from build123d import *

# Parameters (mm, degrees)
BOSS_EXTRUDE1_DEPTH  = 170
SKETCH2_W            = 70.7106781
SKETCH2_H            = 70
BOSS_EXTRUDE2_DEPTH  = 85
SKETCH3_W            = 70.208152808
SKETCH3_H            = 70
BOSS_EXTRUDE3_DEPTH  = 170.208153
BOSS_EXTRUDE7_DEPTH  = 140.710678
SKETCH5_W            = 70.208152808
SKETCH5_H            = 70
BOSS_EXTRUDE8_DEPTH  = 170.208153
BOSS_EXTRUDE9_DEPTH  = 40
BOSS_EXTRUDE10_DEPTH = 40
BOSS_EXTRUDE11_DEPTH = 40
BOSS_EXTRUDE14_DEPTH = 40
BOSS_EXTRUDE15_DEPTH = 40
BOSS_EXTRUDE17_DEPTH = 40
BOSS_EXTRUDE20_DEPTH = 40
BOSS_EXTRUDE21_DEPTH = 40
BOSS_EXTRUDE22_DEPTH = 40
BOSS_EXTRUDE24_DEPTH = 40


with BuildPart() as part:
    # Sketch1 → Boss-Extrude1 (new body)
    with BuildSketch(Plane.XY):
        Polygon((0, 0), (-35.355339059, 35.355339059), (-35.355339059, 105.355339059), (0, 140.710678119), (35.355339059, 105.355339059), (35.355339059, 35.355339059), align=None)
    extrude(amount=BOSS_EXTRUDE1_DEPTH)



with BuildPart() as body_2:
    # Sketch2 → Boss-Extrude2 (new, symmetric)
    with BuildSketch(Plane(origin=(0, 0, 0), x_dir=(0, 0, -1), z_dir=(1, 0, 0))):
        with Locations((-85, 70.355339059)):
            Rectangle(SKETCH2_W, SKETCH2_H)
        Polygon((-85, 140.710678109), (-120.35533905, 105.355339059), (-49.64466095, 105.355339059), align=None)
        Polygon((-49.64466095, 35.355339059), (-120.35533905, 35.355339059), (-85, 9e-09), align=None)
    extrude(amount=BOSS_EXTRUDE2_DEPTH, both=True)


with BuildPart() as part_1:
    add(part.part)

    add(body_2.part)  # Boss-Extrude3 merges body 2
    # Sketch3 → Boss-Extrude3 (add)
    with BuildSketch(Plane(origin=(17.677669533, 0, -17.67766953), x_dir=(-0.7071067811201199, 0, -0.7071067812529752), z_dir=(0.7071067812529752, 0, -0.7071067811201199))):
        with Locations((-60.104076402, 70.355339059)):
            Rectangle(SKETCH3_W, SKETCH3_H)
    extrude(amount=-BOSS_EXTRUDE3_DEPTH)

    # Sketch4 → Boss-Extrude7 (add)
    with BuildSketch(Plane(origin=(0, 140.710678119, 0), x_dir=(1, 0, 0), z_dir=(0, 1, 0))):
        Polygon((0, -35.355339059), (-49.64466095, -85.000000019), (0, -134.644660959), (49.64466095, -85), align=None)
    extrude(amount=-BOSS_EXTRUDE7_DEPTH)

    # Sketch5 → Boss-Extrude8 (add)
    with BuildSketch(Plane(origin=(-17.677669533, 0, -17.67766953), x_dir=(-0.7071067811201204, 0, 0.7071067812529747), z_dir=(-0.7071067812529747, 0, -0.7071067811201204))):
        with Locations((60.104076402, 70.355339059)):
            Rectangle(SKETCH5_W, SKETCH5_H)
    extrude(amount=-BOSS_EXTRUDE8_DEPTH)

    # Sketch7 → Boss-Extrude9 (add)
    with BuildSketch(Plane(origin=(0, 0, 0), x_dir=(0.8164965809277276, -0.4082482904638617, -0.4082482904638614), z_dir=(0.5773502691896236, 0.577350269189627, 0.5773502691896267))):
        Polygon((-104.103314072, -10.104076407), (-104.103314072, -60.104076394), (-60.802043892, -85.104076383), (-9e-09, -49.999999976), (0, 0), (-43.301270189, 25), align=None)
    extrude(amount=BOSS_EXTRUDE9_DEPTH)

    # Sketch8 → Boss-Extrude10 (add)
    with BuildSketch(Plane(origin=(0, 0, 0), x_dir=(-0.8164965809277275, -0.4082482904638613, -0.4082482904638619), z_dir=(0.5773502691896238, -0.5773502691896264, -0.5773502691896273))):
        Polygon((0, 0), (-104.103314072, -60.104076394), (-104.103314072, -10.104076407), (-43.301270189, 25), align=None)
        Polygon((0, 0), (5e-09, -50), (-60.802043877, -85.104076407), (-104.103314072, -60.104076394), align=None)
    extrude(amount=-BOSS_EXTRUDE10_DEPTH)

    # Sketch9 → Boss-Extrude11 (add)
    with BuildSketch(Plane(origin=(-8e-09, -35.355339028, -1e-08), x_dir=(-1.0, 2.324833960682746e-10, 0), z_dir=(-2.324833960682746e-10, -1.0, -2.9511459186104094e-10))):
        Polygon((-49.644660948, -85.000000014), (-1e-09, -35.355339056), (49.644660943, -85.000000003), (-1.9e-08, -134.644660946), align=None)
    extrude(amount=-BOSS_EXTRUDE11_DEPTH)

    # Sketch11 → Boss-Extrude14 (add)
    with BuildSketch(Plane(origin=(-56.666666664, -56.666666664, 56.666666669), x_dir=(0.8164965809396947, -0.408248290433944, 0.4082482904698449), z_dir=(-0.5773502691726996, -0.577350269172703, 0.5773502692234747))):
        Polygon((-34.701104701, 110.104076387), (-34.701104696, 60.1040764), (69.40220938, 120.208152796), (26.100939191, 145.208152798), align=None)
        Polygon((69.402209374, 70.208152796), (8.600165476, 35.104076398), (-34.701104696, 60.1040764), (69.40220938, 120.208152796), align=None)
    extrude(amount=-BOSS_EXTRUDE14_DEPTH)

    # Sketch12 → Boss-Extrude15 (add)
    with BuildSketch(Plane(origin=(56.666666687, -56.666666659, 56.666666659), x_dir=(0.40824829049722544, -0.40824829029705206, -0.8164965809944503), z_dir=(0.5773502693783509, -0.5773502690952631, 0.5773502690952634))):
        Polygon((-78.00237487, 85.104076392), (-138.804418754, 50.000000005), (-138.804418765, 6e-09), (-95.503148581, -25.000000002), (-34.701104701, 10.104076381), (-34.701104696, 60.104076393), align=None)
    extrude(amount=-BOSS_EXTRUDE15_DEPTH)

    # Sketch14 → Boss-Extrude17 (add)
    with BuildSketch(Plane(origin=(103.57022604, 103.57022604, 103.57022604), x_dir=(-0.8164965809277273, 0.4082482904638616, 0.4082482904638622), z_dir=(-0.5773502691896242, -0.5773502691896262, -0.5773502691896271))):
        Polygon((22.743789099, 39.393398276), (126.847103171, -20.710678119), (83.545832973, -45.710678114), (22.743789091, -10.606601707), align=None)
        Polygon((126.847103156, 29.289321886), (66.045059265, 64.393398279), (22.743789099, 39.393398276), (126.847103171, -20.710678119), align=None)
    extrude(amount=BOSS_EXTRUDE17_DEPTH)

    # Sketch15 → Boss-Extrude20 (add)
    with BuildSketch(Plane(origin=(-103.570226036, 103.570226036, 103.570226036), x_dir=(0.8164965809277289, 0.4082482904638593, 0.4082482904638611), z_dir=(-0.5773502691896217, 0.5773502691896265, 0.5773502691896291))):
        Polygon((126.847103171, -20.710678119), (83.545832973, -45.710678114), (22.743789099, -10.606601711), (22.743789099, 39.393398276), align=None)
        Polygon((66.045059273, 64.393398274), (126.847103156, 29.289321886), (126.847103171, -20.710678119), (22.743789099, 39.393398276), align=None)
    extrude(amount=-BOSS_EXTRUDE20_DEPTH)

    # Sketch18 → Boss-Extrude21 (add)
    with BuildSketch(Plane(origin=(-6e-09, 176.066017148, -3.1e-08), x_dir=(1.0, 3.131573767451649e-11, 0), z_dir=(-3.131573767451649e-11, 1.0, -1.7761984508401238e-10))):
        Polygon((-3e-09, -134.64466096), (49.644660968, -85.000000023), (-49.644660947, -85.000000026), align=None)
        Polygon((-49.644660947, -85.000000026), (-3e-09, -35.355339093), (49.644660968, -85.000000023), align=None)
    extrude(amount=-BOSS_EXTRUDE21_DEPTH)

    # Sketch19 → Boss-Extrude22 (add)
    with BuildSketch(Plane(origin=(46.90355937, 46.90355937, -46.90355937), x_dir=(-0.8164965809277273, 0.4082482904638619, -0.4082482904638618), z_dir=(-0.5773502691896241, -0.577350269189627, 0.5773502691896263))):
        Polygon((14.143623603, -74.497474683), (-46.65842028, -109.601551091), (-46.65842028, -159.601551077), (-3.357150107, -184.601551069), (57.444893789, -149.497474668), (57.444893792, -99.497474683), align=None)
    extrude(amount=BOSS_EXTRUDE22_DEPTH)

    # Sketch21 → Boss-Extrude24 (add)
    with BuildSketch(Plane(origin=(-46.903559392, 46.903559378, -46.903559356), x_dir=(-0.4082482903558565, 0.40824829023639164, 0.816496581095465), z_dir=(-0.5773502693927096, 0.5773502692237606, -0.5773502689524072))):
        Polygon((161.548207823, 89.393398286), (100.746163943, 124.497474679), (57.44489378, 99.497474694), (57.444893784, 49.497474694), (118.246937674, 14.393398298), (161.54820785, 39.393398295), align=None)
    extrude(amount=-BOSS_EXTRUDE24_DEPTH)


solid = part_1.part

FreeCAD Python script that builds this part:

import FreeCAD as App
import Part
import Sketcher

V = App.Vector
Q = App.Units.Quantity


def add_polygon(sketch, points):
    """Adds a closed chain of lines whose ends are joined by coincident constraints."""
    first, n = sketch.GeometryCount, len(points)
    for a, b in zip(points, points[1:] + points[:1]):
        sketch.addGeometry(Part.LineSegment(App.Vector(*a, 0), App.Vector(*b, 0)), False)
    for i in range(n):
        sketch.addConstraint(Sketcher.Constraint("Coincident", first + i, 2, first + (i + 1) % n, 1))

doc = App.newDocument("Part")
body = doc.addObject("PartDesign::Body", "Body")

sketch1 = doc.addObject("Sketcher::SketchObject", "Sketch")
body.addObject(sketch1)
sketch1.AttachmentSupport = (doc.XY_Plane, [""])
sketch1.MapMode = "FlatFace"
add_polygon(sketch1, [(-35, 35), (0, 0), (35, 35), (35, 105), (0, 141), (-35, 105)])
sketch1.addConstraint([
    Sketcher.Constraint("Vertical", 2),
    Sketcher.Constraint("Vertical", 5),
    Sketcher.Constraint("Coincident", 0, 2, -1, 1),
    Sketcher.Constraint("Symmetric", 2, 2, 4, 2, -2),
    Sketcher.Constraint("PointOnObject", 3, 2, -2),
    Sketcher.Constraint("Perpendicular", 0, 1),
    Sketcher.Constraint("Perpendicular", 1, 3),
    Sketcher.Constraint("Perpendicular", 3, 4),
    Sketcher.Constraint("DistanceY", 2, 1, 2, 2, 70.0),
    Sketcher.Constraint("Distance", 0, 50.0),
])
pad1 = doc.addObject("PartDesign::Pad", "Pad")
body.addObject(pad1)
pad1.Profile = sketch1
pad1.Length = 170
body2 = doc.addObject("PartDesign::Body", "Body001")

sketch2 = doc.addObject("Sketcher::SketchObject", "Sketch001")
body2.addObject(sketch2)
sketch2.AttachmentSupport = (doc.getObject("YZ_Plane001"), [""])
sketch2.MapMode = "FlatFace"
add_polygon(sketch2, [(105, 120), (35, 120), (0, 85), (35, 50), (105, 50), (141, 85)])
sketch2.addConstraint([
    Sketcher.Constraint("Horizontal", 0),
    Sketcher.Constraint("Horizontal", 3),
    Sketcher.Constraint("PointOnObject", 1, 2, -2),
    Sketcher.Constraint("Perpendicular", 1, 2),
    Sketcher.Constraint("Perpendicular", 2, 4),
    Sketcher.Constraint("Perpendicular", 4, 5),
    Sketcher.Constraint("Horizontal", 1, 2, 4, 2),
    Sketcher.Constraint("Vertical", 0, 2, 2, 2),
    Sketcher.Constraint("Vertical", 3, 2, 5, 2),
    Sketcher.Constraint("DistanceX", 0, 2, 0, 1, 70.0),
    Sketcher.Constraint("Distance", 1, 50.0),
    Sketcher.Constraint("DistanceY", -1, 1, 1, 2, 85.0),
])
pad2 = doc.addObject("PartDesign::Pad", "Pad001")
body2.addObject(pad2)
pad2.Profile = sketch2
pad2.Length = 170
pad2.Midplane = True
doc.recompute()

boolean = doc.addObject("PartDesign::Boolean", "Boolean")
body.addObject(boolean)
boolean.Type = "Fuse"
boolean.addObjects([body2])

sketch3 = doc.addObject("Sketcher::SketchObject", "Sketch002")
body.addObject(sketch3)
sketch3.Placement = App.Placement(V(17.67767, 0, -17.67767), App.Rotation(V(-0.707106781, 0, -0.707106781), V(0, 0.999999999, 0), V(0.707106781, 0, -0.707106781), "ZXY"))
add_polygon(sketch3, [(-95, 105), (-95, 35), (-25, 35), (-25, 105)])
sketch3.addConstraint([
    Sketcher.Constraint("Vertical", 0),
    Sketcher.Constraint("Horizontal", 1),
    Sketcher.Constraint("Vertical", 2),
    Sketcher.Constraint("Horizontal", 3),
    Sketcher.Constraint("DistanceY", 0, 2, 0, 1, 70.0),
    Sketcher.Constraint("DistanceX", 1, 2, -1, 1, 25.0),
    Sketcher.Constraint("DistanceX", 1, 1, 1, 2, 70.208153),
    Sketcher.Constraint("DistanceY", -1, 1, 0, 2, 35.355339),
])
pad3 = doc.addObject("PartDesign::Pad", "Pad002")
body.addObject(pad3)
pad3.Profile = sketch3
pad3.Length = 170.208153
pad3.Reversed = True

sketch4 = doc.addObject("Sketcher::SketchObject", "Sketch003")
body.addObject(sketch4)
sketch4.AttachmentSupport = (doc.XZ_Plane, [""])
sketch4.MapMode = "FlatFace"
sketch4.AttachmentOffset = App.Placement(V(0, 0, -140.710678), App.Rotation())
add_polygon(sketch4, [(0, 35), (-50, 85), (0, 135), (50, 85)])
sketch4.addConstraint([
    Sketcher.Constraint("Symmetric", 0, 2, 2, 2, -2),
    Sketcher.Constraint("PointOnObject", 1, 2, -2),
    Sketcher.Constraint("PointOnObject", 3, 2, -2),
    Sketcher.Constraint("Perpendicular", 0, 1),
    Sketcher.Constraint("Perpendicular", 1, 2),
    Sketcher.Constraint("DistanceY", -1, 1, 0, 2, 85.0),
    Sketcher.Constraint("DistanceX", 0, 2, -1, 1, 49.644661),
])
pad4 = doc.addObject("PartDesign::Pad", "Pad003")
body.addObject(pad4)
pad4.Profile = sketch4
pad4.Length = 140.710678

sketch5 = doc.addObject("Sketcher::SketchObject", "Sketch004")
body.addObject(sketch5)
sketch5.Placement = App.Placement(V(-17.67767, 0, -17.67767), App.Rotation(V(-0.707106781, 0, 0.707106781), V(0, 0.999999999, 0), V(-0.707106781, 0, -0.707106781), "ZXY"))
add_polygon(sketch5, [(25, 105), (25, 35), (95, 35), (95, 105)])
sketch5.addConstraint([
    Sketcher.Constraint("Vertical", 0),
    Sketcher.Constraint("Horizontal", 1),
    Sketcher.Constraint("Vertical", 2),
    Sketcher.Constraint("Horizontal", 3),
    Sketcher.Constraint("DistanceY", 0, 2, 0, 1, 70.0),
    Sketcher.Constraint("DistanceX", -1, 1, 0, 2, 25.0),
    Sketcher.Constraint("DistanceX", 1, 1, 1, 2, 70.208153),
    Sketcher.Constraint("DistanceY", -1, 1, 0, 2, 35.355339),
])
pad5 = doc.addObject("PartDesign::Pad", "Pad004")
body.addObject(pad5)
pad5.Profile = sketch5
pad5.Length = 170.208153
pad5.Reversed = True

sketch6 = doc.addObject("Sketcher::SketchObject", "Sketch005")
body.addObject(sketch6)
sketch6.Placement = App.Placement(V(0, 0, 0), App.Rotation(V(0.816496581, -0.40824829, -0.40824829), V(0, 0.707106781, -0.707106781), V(0.577350269, 0.577350269, 0.577350269), "ZXY"))
add_polygon(sketch6, [(-104, -10), (-104, -60), (-61, -85), (0, -50), (0, 0), (-43, 25)])
sketch6.addConstraint([
    Sketcher.Constraint("Vertical", 0),
    Sketcher.Constraint("Vertical", 3),
    Sketcher.Constraint("Coincident", 3, 2, -1, 1),
    Sketcher.Constraint("Parallel", 1, 4),
    Sketcher.Constraint("Parallel", 2, 5),
    Sketcher.Constraint("Equal", 0, 3),
    Sketcher.Constraint("DistanceY", 0, 2, 0, 1, 50.0),
    Sketcher.Constraint("Angle", 1, Q("-30 deg")),
    Sketcher.Constraint("Angle", 2, Q("30 deg")),
    Sketcher.Constraint("Distance", 1, 50.0),
    Sketcher.Constraint("Distance", 2, 70.208153),
])
pad6 = doc.addObject("PartDesign::Pad", "Pad005")
body.addObject(pad6)
pad6.Profile = sketch6
pad6.Length = 40

sketch7 = doc.addObject("Sketcher::SketchObject", "Sketch006")
body.addObject(sketch7)
sketch7.Placement = App.Placement(V(0, 0, 0), App.Rotation(V(-0.816496581, -0.40824829, -0.40824829), V(0, 0.707106781, -0.707106781), V(0.577350269, -0.577350269, -0.577350269), "ZXY"))
add_polygon(sketch7, [(-104, -10), (-104, -60), (-61, -85), (0, -50), (0, 0), (-43, 25)])
sketch7.addConstraint([
    Sketcher.Constraint("Vertical", 0),
    Sketcher.Constraint("Vertical", 3),
    Sketcher.Constraint("Coincident", 3, 2, -1, 1),
    Sketcher.Constraint("Parallel", 1, 4),
    Sketcher.Constraint("Parallel", 2, 5),
    Sketcher.Constraint("Equal", 0, 3),
    Sketcher.Constraint("DistanceY", 0, 2, 0, 1, 50.0),
    Sketcher.Constraint("Angle", 1, Q("-30 deg")),
    Sketcher.Constraint("Angle", 2, Q("30 deg")),
    Sketcher.Constraint("Distance", 1, 50.0),
    Sketcher.Constraint("Distance", 2, 70.208153),
])
pad7 = doc.addObject("PartDesign::Pad", "Pad006")
body.addObject(pad7)
pad7.Profile = sketch7
pad7.Length = 40
pad7.Reversed = True

sketch8 = doc.addObject("Sketcher::SketchObject", "Sketch007")
body.addObject(sketch8)
sketch8.AttachmentSupport = (doc.XZ_Plane, [""])
sketch8.MapMode = "FlatFace"
sketch8.AttachmentOffset = App.Placement(V(0, 0, 35.355339), App.Rotation())
add_polygon(sketch8, [(0, 35), (50, 85), (0, 135), (-50, 85)])
sketch8.addConstraint([
    Sketcher.Constraint("Symmetric", 0, 2, 2, 2, -2),
    Sketcher.Constraint("PointOnObject", 1, 2, -2),
    Sketcher.Constraint("PointOnObject", 3, 2, -2),
    Sketcher.Constraint("Perpendicular", 0, 1),
    Sketcher.Constraint("Perpendicular", 1, 2),
    Sketcher.Constraint("DistanceY", -1, 1, 0, 2, 85.0),
    Sketcher.Constraint("DistanceX", -1, 1, 0, 2, 49.644661),
])
pad8 = doc.addObject("PartDesign::Pad", "Pad007")
body.addObject(pad8)
pad8.Profile = sketch8
pad8.Length = 40
pad8.Reversed = True

sketch9 = doc.addObject("Sketcher::SketchObject", "Sketch008")
body.addObject(sketch9)
sketch9.Placement = App.Placement(V(-56.666667, -56.666667, 56.666667), App.Rotation(V(0.816496581, -0.40824829, 0.40824829), V(0, 0.707106781, 0.707106781), V(-0.577350269, -0.577350269, 0.577350269), "ZXY"))
add_polygon(sketch9, [(-35, 110), (-35, 60), (9, 35), (69, 70), (69, 120), (26, 145)])
sketch9.addConstraint([
    Sketcher.Constraint("Vertical", 0),
    Sketcher.Constraint("Vertical", 3),
    Sketcher.Constraint("Parallel", 1, 4),
    Sketcher.Constraint("Parallel", 2, 5),
    Sketcher.Constraint("Equal", 0, 3),
    Sketcher.Constraint("DistanceY", 0, 2, 0, 1, 50.0),
    Sketcher.Constraint("Angle", 1, Q("-30 deg")),
    Sketcher.Constraint("Angle", 2, Q("30 deg")),
    Sketcher.Constraint("Distance", 1, 50.0),
    Sketcher.Constraint("DistanceX", -1, 1, 2, 2, 69.402209),
    Sketcher.Constraint("Distance", 2, 70.208153),
    Sketcher.Constraint("DistanceY", -1, 1, 0, 2, 60.104076),
])
pad9 = doc.addObject("PartDesign::Pad", "Pad008")
body.addObject(pad9)
pad9.Profile = sketch9
pad9.Length = 40
pad9.Reversed = True

sketch10 = doc.addObject("Sketcher::SketchObject", "Sketch009")
body.addObject(sketch10)
sketch10.Placement = App.Placement(V(56.666667, -56.666667, 56.666667), App.Rotation(V(0.40824829, -0.40824829, -0.816496581), V(0.707106781, 0.707106781, 0), V(0.577350269, -0.577350269, 0.577350269), "ZXY"))
add_polygon(sketch10, [(-78, 85), (-139, 50), (-139, 0), (-96, -25), (-35, 10), (-35, 60)])
sketch10.addConstraint([
    Sketcher.Constraint("Vertical", 1),
    Sketcher.Constraint("Vertical", 4),
    Sketcher.Constraint("PointOnObject", 1, 2, -1),
    Sketcher.Constraint("Parallel", 0, 3),
    Sketcher.Constraint("Parallel", 2, 5),
    Sketcher.Constraint("Equal", 1, 4),
    Sketcher.Constraint("DistanceY", 1, 2, 1, 1, 50.0),
    Sketcher.Constraint("Angle", 0, Q("-150 deg")),
    Sketcher.Constraint("Angle", 2, Q("-30 deg")),
    Sketcher.Constraint("Distance", 2, 50.0),
    Sketcher.Constraint("DistanceX", 0, 2, -1, 1, 138.804419),
    Sketcher.Constraint("Distance", 0, 70.208153),
])
pad10 = doc.addObject("PartDesign::Pad", "Pad009")
body.addObject(pad10)
pad10.Profile = sketch10
pad10.Length = 40
pad10.Reversed = True

sketch11 = doc.addObject("Sketcher::SketchObject", "Sketch010")
body.addObject(sketch11)
sketch11.Placement = App.Placement(V(103.570226, 103.570226, 103.570226), App.Rotation(V(-0.816496581, 0.40824829, 0.40824829), V(0, 0.707106781, -0.707106781), V(-0.577350269, -0.577350269, -0.577350269), "ZXY"))
add_polygon(sketch11, [(84, -46), (127, -21), (127, 29), (66, 64), (23, 39), (23, -11)])
sketch11.addConstraint([
    Sketcher.Constraint("Vertical", 1),
    Sketcher.Constraint("Vertical", 4),
    Sketcher.Constraint("Parallel", 0, 3),
    Sketcher.Constraint("Parallel", 2, 5),
    Sketcher.Constraint("Equal", 1, 4),
    Sketcher.Constraint("DistanceY", 1, 1, 1, 2, 50.0),
    Sketcher.Constraint("Angle", 0, Q("30 deg")),
    Sketcher.Constraint("Angle", 2, Q("150 deg")),
    Sketcher.Constraint("Distance", 0, 50.0),
    Sketcher.Constraint("DistanceY", -1, 1, 2, 2, 64.393398),
    Sketcher.Constraint("DistanceY", 0, 2, -1, 1, 20.710678),
    Sketcher.Constraint("DistanceX", -1, 1, 2, 2, 66.045059),
])
pad11 = doc.addObject("PartDesign::Pad", "Pad010")
body.addObject(pad11)
pad11.Profile = sketch11
pad11.Length = 40

sketch12 = doc.addObject("Sketcher::SketchObject", "Sketch011")
body.addObject(sketch12)
sketch12.Placement = App.Placement(V(-103.570226, 103.570226, 103.570226), App.Rotation(V(0.816496581, 0.40824829, 0.40824829), V(0, 0.707106781, -0.707106781), V(-0.577350269, 0.577350269, 0.577350269), "ZXY"))
add_polygon(sketch12, [(84, -46), (127, -21), (127, 29), (66, 64), (23, 39), (23, -11)])
sketch12.addConstraint([
    Sketcher.Constraint("Vertical", 1),
    Sketcher.Constraint("Vertical", 4),
    Sketcher.Constraint("Parallel", 0, 3),
    Sketcher.Constraint("Parallel", 2, 5),
    Sketcher.Constraint("Equal", 1, 4),
    Sketcher.Constraint("DistanceY", 1, 1, 1, 2, 50.0),
    Sketcher.Constraint("Angle", 0, Q("30 deg")),
    Sketcher.Constraint("Angle", 2, Q("150 deg")),
    Sketcher.Constraint("Distance", 0, 50.0),
    Sketcher.Constraint("DistanceY", -1, 1, 2, 2, 64.393398),
    Sketcher.Constraint("DistanceY", 0, 2, -1, 1, 20.710678),
    Sketcher.Constraint("DistanceX", -1, 1, 2, 2, 66.045059),
])
pad12 = doc.addObject("PartDesign::Pad", "Pad011")
body.addObject(pad12)
pad12.Profile = sketch12
pad12.Length = 40
pad12.Reversed = True

sketch13 = doc.addObject("Sketcher::SketchObject", "Sketch012")
body.addObject(sketch13)
sketch13.AttachmentSupport = (doc.XZ_Plane, [""])
sketch13.MapMode = "FlatFace"
sketch13.AttachmentOffset = App.Placement(V(0, 0, -176.066017), App.Rotation())
add_polygon(sketch13, [(0, 135), (50, 85), (0, 35), (-50, 85)])
sketch13.addConstraint([
    Sketcher.Constraint("Symmetric", 0, 2, 2, 2, -2),
    Sketcher.Constraint("PointOnObject", 1, 2, -2),
    Sketcher.Constraint("PointOnObject", 3, 2, -2),
    Sketcher.Constraint("Perpendicular", 0, 1),
    Sketcher.Constraint("Perpendicular", 1, 2),
    Sketcher.Constraint("DistanceY", -1, 1, 0, 2, 85.0),
    Sketcher.Constraint("DistanceX", -1, 1, 0, 2, 49.644661),
])
pad13 = doc.addObject("PartDesign::Pad", "Pad012")
body.addObject(pad13)
pad13.Profile = sketch13
pad13.Length = 40

sketch14 = doc.addObject("Sketcher::SketchObject", "Sketch013")
body.addObject(sketch14)
sketch14.Placement = App.Placement(V(46.903559, 46.903559, -46.903559), App.Rotation(V(-0.816496581, 0.40824829, -0.40824829), V(0, -0.707106781, -0.707106781), V(-0.577350269, -0.577350269, 0.577350269), "ZXY"))
add_polygon(sketch14, [(14, -74), (-47, -110), (-47, -160), (-3, -185), (57, -149), (57, -99)])
sketch14.addConstraint([
    Sketcher.Constraint("Vertical", 1),
    Sketcher.Constraint("Vertical", 4),
    Sketcher.Constraint("Parallel", 0, 3),
    Sketcher.Constraint("Parallel", 2, 5),
    Sketcher.Constraint("Equal", 1, 4),
    Sketcher.Constraint("DistanceY", 1, 2, 1, 1, 50.0),
    Sketcher.Constraint("Angle", 0, Q("-150 deg")),
    Sketcher.Constraint("Angle", 2, Q("-30 deg")),
    Sketcher.Constraint("Distance", 2, 50.0),
    Sketcher.Constraint("DistanceX", 0, 2, -1, 1, 46.65842),
    Sketcher.Constraint("DistanceY", 0, 2, -1, 1, 109.601551),
    Sketcher.Constraint("Distance", 0, 70.208153),
])
pad14 = doc.addObject("PartDesign::Pad", "Pad013")
body.addObject(pad14)
pad14.Profile = sketch14
pad14.Length = 40

sketch15 = doc.addObject("Sketcher::SketchObject", "Sketch014")
body.addObject(sketch15)
sketch15.Placement = App.Placement(V(-46.903559, 46.903559, -46.903559), App.Rotation(V(-0.40824829, 0.40824829, 0.816496581), V(0.707106781, 0.707106781, 0), V(-0.577350269, 0.577350269, -0.577350269), "ZXY"))
add_polygon(sketch15, [(162, 89), (101, 124), (57, 99), (57, 49), (118, 14), (162, 39)])
sketch15.addConstraint([
    Sketcher.Constraint("Vertical", 2),
    Sketcher.Constraint("Vertical", 5),
    Sketcher.Constraint("Parallel", 0, 3),
    Sketcher.Constraint("Parallel", 1, 4),
    Sketcher.Constraint("Equal", 2, 5),
    Sketcher.Constraint("DistanceY", 2, 2, 2, 1, 50.0),
    Sketcher.Constraint("Angle", 0, Q("150 deg")),
    Sketcher.Constraint("Angle", 1, Q("-150 deg")),
    Sketcher.Constraint("Distance", 1, 50.0),
    Sketcher.Constraint("DistanceY", -1, 1, 3, 2, 14.393398),
    Sketcher.Constraint("Distance", 0, 70.208153),
    Sketcher.Constraint("DistanceX", -1, 1, 0, 2, 100.746164),
])
pad15 = doc.addObject("PartDesign::Pad", "Pad014")
body.addObject(pad15)
pad15.Profile = sketch15
pad15.Length = 40
pad15.Reversed = True

doc.recompute()
